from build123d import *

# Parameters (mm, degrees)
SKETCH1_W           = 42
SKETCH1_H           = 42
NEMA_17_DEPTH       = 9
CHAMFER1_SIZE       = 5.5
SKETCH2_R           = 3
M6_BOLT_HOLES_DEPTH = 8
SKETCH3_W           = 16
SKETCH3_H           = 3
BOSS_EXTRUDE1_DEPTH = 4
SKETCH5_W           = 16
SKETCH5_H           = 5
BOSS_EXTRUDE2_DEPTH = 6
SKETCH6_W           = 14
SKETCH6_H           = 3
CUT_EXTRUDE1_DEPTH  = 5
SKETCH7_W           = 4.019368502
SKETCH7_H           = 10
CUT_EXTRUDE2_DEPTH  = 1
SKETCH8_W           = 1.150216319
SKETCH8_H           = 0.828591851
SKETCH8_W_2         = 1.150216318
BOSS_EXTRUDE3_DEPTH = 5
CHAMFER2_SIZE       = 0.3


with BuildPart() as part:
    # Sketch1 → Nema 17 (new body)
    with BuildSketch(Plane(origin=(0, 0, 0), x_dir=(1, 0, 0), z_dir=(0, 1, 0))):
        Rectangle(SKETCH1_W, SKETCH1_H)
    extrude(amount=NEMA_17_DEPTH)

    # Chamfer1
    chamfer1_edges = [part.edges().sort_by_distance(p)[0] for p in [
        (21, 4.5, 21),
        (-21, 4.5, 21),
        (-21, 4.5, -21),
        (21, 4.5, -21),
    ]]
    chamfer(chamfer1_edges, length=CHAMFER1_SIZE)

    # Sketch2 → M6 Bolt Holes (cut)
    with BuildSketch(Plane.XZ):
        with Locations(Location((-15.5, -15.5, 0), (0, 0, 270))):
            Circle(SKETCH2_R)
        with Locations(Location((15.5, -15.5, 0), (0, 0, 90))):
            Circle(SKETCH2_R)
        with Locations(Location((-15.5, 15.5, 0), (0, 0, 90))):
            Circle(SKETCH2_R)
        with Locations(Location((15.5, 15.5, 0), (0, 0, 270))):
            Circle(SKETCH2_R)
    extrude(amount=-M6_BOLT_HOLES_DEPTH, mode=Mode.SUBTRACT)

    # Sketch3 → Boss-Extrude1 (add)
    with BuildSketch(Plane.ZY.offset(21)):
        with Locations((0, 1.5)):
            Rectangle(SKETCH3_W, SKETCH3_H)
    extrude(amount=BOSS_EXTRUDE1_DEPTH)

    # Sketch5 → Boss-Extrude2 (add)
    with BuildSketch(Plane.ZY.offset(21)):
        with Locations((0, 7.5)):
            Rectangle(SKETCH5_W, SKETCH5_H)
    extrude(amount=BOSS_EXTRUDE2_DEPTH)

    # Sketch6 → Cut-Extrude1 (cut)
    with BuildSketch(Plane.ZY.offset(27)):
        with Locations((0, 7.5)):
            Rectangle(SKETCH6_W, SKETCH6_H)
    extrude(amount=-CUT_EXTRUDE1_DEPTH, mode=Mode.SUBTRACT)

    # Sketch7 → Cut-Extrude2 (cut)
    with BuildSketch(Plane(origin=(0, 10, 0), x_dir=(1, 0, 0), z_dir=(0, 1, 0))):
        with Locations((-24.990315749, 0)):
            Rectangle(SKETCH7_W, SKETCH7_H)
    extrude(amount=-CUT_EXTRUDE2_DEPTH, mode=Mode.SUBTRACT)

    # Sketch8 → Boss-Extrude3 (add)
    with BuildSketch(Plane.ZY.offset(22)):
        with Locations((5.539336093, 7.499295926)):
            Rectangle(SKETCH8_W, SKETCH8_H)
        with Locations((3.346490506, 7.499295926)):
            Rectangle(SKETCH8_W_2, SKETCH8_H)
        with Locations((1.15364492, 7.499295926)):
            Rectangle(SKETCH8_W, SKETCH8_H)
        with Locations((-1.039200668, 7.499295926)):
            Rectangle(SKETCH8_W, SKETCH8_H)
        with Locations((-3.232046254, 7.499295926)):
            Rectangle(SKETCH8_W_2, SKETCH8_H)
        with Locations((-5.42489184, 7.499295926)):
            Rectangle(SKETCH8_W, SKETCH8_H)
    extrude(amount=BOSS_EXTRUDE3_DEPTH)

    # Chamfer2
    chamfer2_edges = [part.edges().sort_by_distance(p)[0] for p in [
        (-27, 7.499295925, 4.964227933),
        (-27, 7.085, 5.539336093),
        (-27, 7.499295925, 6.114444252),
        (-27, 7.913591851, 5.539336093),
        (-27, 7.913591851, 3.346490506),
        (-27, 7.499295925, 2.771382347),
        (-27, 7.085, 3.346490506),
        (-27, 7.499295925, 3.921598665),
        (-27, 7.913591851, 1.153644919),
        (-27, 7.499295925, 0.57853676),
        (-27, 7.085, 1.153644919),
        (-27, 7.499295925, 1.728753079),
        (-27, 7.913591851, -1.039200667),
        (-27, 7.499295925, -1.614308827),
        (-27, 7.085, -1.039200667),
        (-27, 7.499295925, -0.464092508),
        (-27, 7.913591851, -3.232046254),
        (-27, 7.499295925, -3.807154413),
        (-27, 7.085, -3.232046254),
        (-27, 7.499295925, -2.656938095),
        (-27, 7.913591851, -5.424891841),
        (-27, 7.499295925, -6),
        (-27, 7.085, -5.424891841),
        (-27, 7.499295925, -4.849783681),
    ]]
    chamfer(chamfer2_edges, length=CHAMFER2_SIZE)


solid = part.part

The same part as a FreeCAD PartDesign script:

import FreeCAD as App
import Part
import Sketcher

V = App.Vector


def edges_at(feature, points):
    """Names of the edges that pass closest to the given points."""
    edges = feature.Shape.Edges
    near = lambda p: min(range(len(edges)), key=lambda i: edges[i].distToShape(Part.Vertex(*p))[0])
    return sorted({f"Edge{near(p) + 1}" for p in points})

doc = App.newDocument("Part")
body = doc.addObject("PartDesign::Body", "Body")

sketch1 = body.newObject("Sketcher::SketchObject", "Sketch")
sketch1.AttachmentSupport = (doc.getObject("XZ_Plane"), [""])
sketch1.MapMode = "FlatFace"
sketch1.addGeometry(Part.LineSegment(V(-21, -21, 0), V(-21, 21, 0)), False)
sketch1.addGeometry(Part.LineSegment(V(-21, 21, 0), V(21, 21, 0)), False)
sketch1.addGeometry(Part.LineSegment(V(21, 21, 0), V(21, -21, 0)), False)
sketch1.addGeometry(Part.LineSegment(V(21, -21, 0), V(-21, -21, 0)), False)
sketch1.addConstraint(Sketcher.Constraint("Coincident", 0, 2, 1, 1))
sketch1.addConstraint(Sketcher.Constraint("Coincident", 1, 2, 2, 1))
sketch1.addConstraint(Sketcher.Constraint("Coincident", 2, 2, 3, 1))
sketch1.addConstraint(Sketcher.Constraint("Coincident", 3, 2, 0, 1))
sketch1.addConstraint(Sketcher.Constraint("Vertical", 0))
sketch1.addConstraint(Sketcher.Constraint("Horizontal", 1))
sketch1.addConstraint(Sketcher.Constraint("Vertical", 2))
sketch1.addConstraint(Sketcher.Constraint("Horizontal", 3))
sketch1.addConstraint(Sketcher.Constraint("Symmetric", 0, 2, 2, 2, -1, 1))
sketch1.addConstraint(Sketcher.Constraint("Equal", 3, 0))
sketch1.addConstraint(Sketcher.Constraint("DistanceX", 1, 1, 1, 2, 42.0))
pad1 = body.newObject("PartDesign::Pad", "Pad")
pad1.Profile = sketch1
pad1.Length = 9
pad1.Reversed = True
doc.recompute()

chamfer = body.newObject("PartDesign::Chamfer", "Chamfer")
chamfer.Base = (pad1, edges_at(pad1, [
    (21, 4.5, 21),
    (-21, 4.5, 21),
    (-21, 4.5, -21),
    (21, 4.5, -21),
]))
chamfer.Size = 5.5

sketch2 = body.newObject("Sketcher::SketchObject", "Sketch001")
sketch2.AttachmentSupport = (doc.getObject("XZ_Plane"), [""])
sketch2.MapMode = "FlatFace"
sketch2.addGeometry(Part.Circle(V(-15.5, -15.5, 0), V(0, 0, 1), 3), False)
sketch2.addGeometry(Part.Circle(V(15.5, -15.5, 0), V(0, 0, 1), 3), False)
sketch2.addGeometry(Part.Circle(V(-15.5, 15.5, 0), V(0, 0, 1), 3), False)
sketch2.addGeometry(Part.Circle(V(15.5, 15.5, 0), V(0, 0, 1), 3), False)
sketch2.addConstraint(Sketcher.Constraint("Equal", 0, 1))
sketch2.addConstraint(Sketcher.Constraint("Equal", 1, 2))
sketch2.addConstraint(Sketcher.Constraint("Equal", 2, 3))
sketch2.addConstraint(Sketcher.Constraint("Symmetric", 1, 3, 2, 3, -1, 1))
sketch2.addConstraint(Sketcher.Constraint("Symmetric", 0, 3, 3, 3, -1, 1))
sketch2.addConstraint(Sketcher.Constraint("Symmetric", 0, 3, 1, 3, -2))
sketch2.addConstraint(Sketcher.Constraint("Diameter", 0, 6.0))
sketch2.addConstraint(Sketcher.Constraint("DistanceX", 0, 3, 1, 3, 31.0))
sketch2.addConstraint(Sketcher.Constraint("DistanceY", 0, 3, 2, 3, 31.0))
pocket1 = body.newObject("PartDesign::Pocket", "Pocket")
pocket1.Profile = sketch2
pocket1.Length = 8

sketch3 = body.newObject("Sketcher::SketchObject", "Sketch002")
sketch3.AttachmentSupport = (doc.getObject("YZ_Plane"), [""])
sketch3.MapMode = "FlatFace"
sketch3.AttachmentOffset = App.Placement(V(0, 0, -21), App.Rotation())
sketch3.addGeometry(Part.LineSegment(V(3, -8, 0), V(0, -8, 0)), False)
sketch3.addGeometry(Part.LineSegment(V(0, -8, 0), V(0, 8, 0)), False)
sketch3.addGeometry(Part.LineSegment(V(0, 8, 0), V(3, 8, 0)), False)
sketch3.addGeometry(Part.LineSegment(V(3, 8, 0), V(3, -8, 0)), False)
sketch3.addConstraint(Sketcher.Constraint("Coincident", 0, 2, 1, 1))
sketch3.addConstraint(Sketcher.Constraint("Coincident", 1, 2, 2, 1))
sketch3.addConstraint(Sketcher.Constraint("Coincident", 2, 2, 3, 1))
sketch3.addConstraint(Sketcher.Constraint("Coincident", 3, 2, 0, 1))
sketch3.addConstraint(Sketcher.Constraint("Horizontal", 0))
sketch3.addConstraint(Sketcher.Constraint("Vertical", 1))
sketch3.addConstraint(Sketcher.Constraint("Horizontal", 2))
sketch3.addConstraint(Sketcher.Constraint("Vertical", 3))
sketch3.addConstraint(Sketcher.Constraint("Symmetric", 0, 2, 1, 2, -1, 1))
sketch3.addConstraint(Sketcher.Constraint("DistanceX", 0, 2, 0, 1, 3.0))
sketch3.addConstraint(Sketcher.Constraint("DistanceY", 1, 1, 1, 2, 16.0))
pad2 = body.newObject("PartDesign::Pad", "Pad001")
pad2.Profile = sketch3
pad2.Length = 4
pad2.Reversed = True

sketch4 = body.newObject("Sketcher::SketchObject", "Sketch003")
sketch4.AttachmentSupport = (doc.getObject("YZ_Plane"), [""])
sketch4.MapMode = "FlatFace"
sketch4.AttachmentOffset = App.Placement(V(0, 0, -21), App.Rotation())
sketch4.addGeometry(Part.LineSegment(V(10, -8, 0), V(5, -8, 0)), False)
sketch4.addGeometry(Part.LineSegment(V(5, -8, 0), V(5, 8, 0)), False)
sketch4.addGeometry(Part.LineSegment(V(5, 8, 0), V(10, 8, 0)), False)
sketch4.addGeometry(Part.LineSegment(V(10, 8, 0), V(10, -8, 0)), False)
sketch4.addConstraint(Sketcher.Constraint("Coincident", 0, 2, 1, 1))
sketch4.addConstraint(Sketcher.Constraint("Coincident", 1, 2, 2, 1))
sketch4.addConstraint(Sketcher.Constraint("Coincident", 2, 2, 3, 1))
sketch4.addConstraint(Sketcher.Constraint("Coincident", 3, 2, 0, 1))
sketch4.addConstraint(Sketcher.Constraint("Horizontal", 0))
sketch4.addConstraint(Sketcher.Constraint("Vertical", 1))
sketch4.addConstraint(Sketcher.Constraint("Horizontal", 2))
sketch4.addConstraint(Sketcher.Constraint("Vertical", 3))
sketch4.addConstraint(Sketcher.Constraint("DistanceX", 0, 2, 0, 1, 5.0))
sketch4.addConstraint(Sketcher.Constraint("DistanceY", 1, 1, 1, 2, 16.0))
sketch4.addConstraint(Sketcher.Constraint("DistanceX", -1, 1, 0, 2, 5.0))
sketch4.addConstraint(Sketcher.Constraint("DistanceY", 0, 2, -1, 1, 8.0))
pad3 = body.newObject("PartDesign::Pad", "Pad002")
pad3.Profile = sketch4
pad3.Length = 6
pad3.Reversed = True

sketch5 = body.newObject("Sketcher::SketchObject", "Sketch004")
sketch5.AttachmentSupport = (doc.getObject("YZ_Plane"), [""])
sketch5.MapMode = "FlatFace"
sketch5.AttachmentOffset = App.Placement(V(0, 0, -27), App.Rotation())
sketch5.addGeometry(Part.LineSegment(V(9, -7, 0), V(6, -7, 0)), False)
sketch5.addGeometry(Part.LineSegment(V(6, -7, 0), V(6, 7, 0)), False)
sketch5.addGeometry(Part.LineSegment(V(6, 7, 0), V(9, 7, 0)), False)
sketch5.addGeometry(Part.LineSegment(V(9, 7, 0), V(9, -7, 0)), False)
sketch5.addConstraint(Sketcher.Constraint("Coincident", 0, 2, 1, 1))
sketch5.addConstraint(Sketcher.Constraint("Coincident", 1, 2, 2, 1))
sketch5.addConstraint(Sketcher.Constraint("Coincident", 2, 2, 3, 1))
sketch5.addConstraint(Sketcher.Constraint("Coincident", 3, 2, 0, 1))
sketch5.addConstraint(Sketcher.Constraint("Horizontal", 0))
sketch5.addConstraint(Sketcher.Constraint("Vertical", 1))
sketch5.addConstraint(Sketcher.Constraint("Horizontal", 2))
sketch5.addConstraint(Sketcher.Constraint("Vertical", 3))
sketch5.addConstraint(Sketcher.Constraint("DistanceX", 0, 2, 0, 1, 3.0))
sketch5.addConstraint(Sketcher.Constraint("DistanceY", 1, 1, 1, 2, 14.0))
sketch5.addConstraint(Sketcher.Constraint("DistanceX", -1, 1, 0, 2, 6.0))
sketch5.addConstraint(Sketcher.Constraint("DistanceY", 0, 2, -1, 1, 7.0))
pocket2 = body.newObject("PartDesign::Pocket", "Pocket001")
pocket2.Profile = sketch5
pocket2.Length = 5
pocket2.Reversed = True

sketch6 = body.newObject("Sketcher::SketchObject", "Sketch005")
sketch6.AttachmentSupport = (doc.getObject("XZ_Plane"), [""])
sketch6.MapMode = "FlatFace"
sketch6.AttachmentOffset = App.Placement(V(0, 0, -10), App.Rotation())
sketch6.addGeometry(Part.LineSegment(V(-27, -5, 0), V(-27, 5, 0)), False)
sketch6.addGeometry(Part.LineSegment(V(-27, 5, 0), V(-23, 5, 0)), False)
sketch6.addGeometry(Part.LineSegment(V(-23, 5, 0), V(-23, -5, 0)), False)
sketch6.addGeometry(Part.LineSegment(V(-23, -5, 0), V(-27, -5, 0)), False)
sketch6.addConstraint(Sketcher.Constraint("Coincident", 0, 2, 1, 1))
sketch6.addConstraint(Sketcher.Constraint("Coincident", 1, 2, 2, 1))
sketch6.addConstraint(Sketcher.Constraint("Coincident", 2, 2, 3, 1))
sketch6.addConstraint(Sketcher.Constraint("Coincident", 3, 2, 0, 1))
sketch6.addConstraint(Sketcher.Constraint("Vertical", 0))
sketch6.addConstraint(Sketcher.Constraint("Horizontal", 1))
sketch6.addConstraint(Sketcher.Constraint("Vertical", 2))
sketch6.addConstraint(Sketcher.Constraint("Horizontal", 3))
sketch6.addConstraint(Sketcher.Constraint("DistanceY", 0, 1, 0, 2, 10.0))
sketch6.addConstraint(Sketcher.Constraint("DistanceX", 0, 2, -1, 1, 27.0))
sketch6.addConstraint(Sketcher.Constraint("DistanceY", -1, 1, 0, 2, 5.0))
sketch6.addConstraint(Sketcher.Constraint("DistanceX", 1, 1, 1, 2, 4.019369))
pocket3 = body.newObject("PartDesign::Pocket", "Pocket002")
pocket3.Profile = sketch6
pocket3.Length = 1
pocket3.Reversed = True

sketch7 = body.newObject("Sketcher::SketchObject", "Sketch006")
sketch7.AttachmentSupport = (doc.getObject("YZ_Plane"), [""])
sketch7.MapMode = "FlatFace"
sketch7.AttachmentOffset = App.Placement(V(0, 0, -22), App.Rotation())
sketch7.addGeometry(Part.LineSegment(V(7.9, 5, 0), V(7.1, 5, 0)), False)
sketch7.addGeometry(Part.LineSegment(V(7.1, 5, 0), V(7.1, 6.1, 0)), False)
sketch7.addGeometry(Part.LineSegment(V(7.1, 6.1, 0), V(7.9, 6.1, 0)), False)
sketch7.addGeometry(Part.LineSegment(V(7.9, 6.1, 0), V(7.9, 5, 0)), False)
sketch7.addGeometry(Part.LineSegment(V(7.9, 2.8, 0), V(7.1, 2.8, 0)), False)
sketch7.addGeometry(Part.LineSegment(V(7.1, 2.8, 0), V(7.1, 3.9, 0)), False)
sketch7.addGeometry(Part.LineSegment(V(7.1, 3.9, 0), V(7.9, 3.9, 0)), False)
sketch7.addGeometry(Part.LineSegment(V(7.9, 3.9, 0), V(7.9, 2.8, 0)), False)
sketch7.addGeometry(Part.LineSegment(V(7.9, 0.6, 0), V(7.1, 0.6, 0)), False)
sketch7.addGeometry(Part.LineSegment(V(7.1, 0.6, 0), V(7.1, 1.7, 0)), False)
sketch7.addGeometry(Part.LineSegment(V(7.1, 1.7, 0), V(7.9, 1.7, 0)), False)
sketch7.addGeometry(Part.LineSegment(V(7.9, 1.7, 0), V(7.9, 0.6, 0)), False)
sketch7.addGeometry(Part.LineSegment(V(7.9, -1.6, 0), V(7.1, -1.6, 0)), False)
sketch7.addGeometry(Part.LineSegment(V(7.1, -1.6, 0), V(7.1, -0.5, 0)), False)
sketch7.addGeometry(Part.LineSegment(V(7.1, -0.5, 0), V(7.9, -0.5, 0)), False)
sketch7.addGeometry(Part.LineSegment(V(7.9, -0.5, 0), V(7.9, -1.6, 0)), False)
sketch7.addGeometry(Part.LineSegment(V(7.9, -3.8, 0), V(7.1, -3.8, 0)), False)
sketch7.addGeometry(Part.LineSegment(V(7.1, -3.8, 0), V(7.1, -2.7, 0)), False)
sketch7.addGeometry(Part.LineSegment(V(7.1, -2.7, 0), V(7.9, -2.7, 0)), False)
sketch7.addGeometry(Part.LineSegment(V(7.9, -2.7, 0), V(7.9, -3.8, 0)), False)
sketch7.addGeometry(Part.LineSegment(V(7.9, -6, 0), V(7.1, -6, 0)), False)
sketch7.addGeometry(Part.LineSegment(V(7.1, -6, 0), V(7.1, -4.8, 0)), False)
sketch7.addGeometry(Part.LineSegment(V(7.1, -4.8, 0), V(7.9, -4.8, 0)), False)
sketch7.addGeometry(Part.LineSegment(V(7.9, -4.8, 0), V(7.9, -6, 0)), False)
sketch7.addConstraint(Sketcher.Constraint("Coincident", 0, 2, 1, 1))
sketch7.addConstraint(Sketcher.Constraint("Coincident", 1, 2, 2, 1))
sketch7.addConstraint(Sketcher.Constraint("Coincident", 2, 2, 3, 1))
sketch7.addConstraint(Sketcher.Constraint("Coincident", 3, 2, 0, 1))
sketch7.addConstraint(Sketcher.Constraint("Coincident", 4, 2, 5, 1))
sketch7.addConstraint(Sketcher.Constraint("Coincident", 5, 2, 6, 1))
sketch7.addConstraint(Sketcher.Constraint("Coincident", 6, 2, 7, 1))
sketch7.addConstraint(Sketcher.Constraint("Coincident", 7, 2, 4, 1))
sketch7.addConstraint(Sketcher.Constraint("Coincident", 8, 2, 9, 1))
sketch7.addConstraint(Sketcher.Constraint("Coincident", 9, 2, 10, 1))
sketch7.addConstraint(Sketcher.Constraint("Coincident", 10, 2, 11, 1))
sketch7.addConstraint(Sketcher.Constraint("Coincident", 11, 2, 8, 1))
sketch7.addConstraint(Sketcher.Constraint("Coincident", 12, 2, 13, 1))
sketch7.addConstraint(Sketcher.Constraint("Coincident", 13, 2, 14, 1))
sketch7.addConstraint(Sketcher.Constraint("Coincident", 14, 2, 15, 1))
sketch7.addConstraint(Sketcher.Constraint("Coincident", 15, 2, 12, 1))
sketch7.addConstraint(Sketcher.Constraint("Coincident", 16, 2, 17, 1))
sketch7.addConstraint(Sketcher.Constraint("Coincident", 17, 2, 18, 1))
sketch7.addConstraint(Sketcher.Constraint("Coincident", 18, 2, 19, 1))
sketch7.addConstraint(Sketcher.Constraint("Coincident", 19, 2, 16, 1))
sketch7.addConstraint(Sketcher.Constraint("Coincident", 20, 2, 21, 1))
sketch7.addConstraint(Sketcher.Constraint("Coincident", 21, 2, 22, 1))
sketch7.addConstraint(Sketcher.Constraint("Coincident", 22, 2, 23, 1))
sketch7.addConstraint(Sketcher.Constraint("Coincident", 23, 2, 20, 1))
sketch7.addConstraint(Sketcher.Constraint("Horizontal", 0))
sketch7.addConstraint(Sketcher.Constraint("Vertical", 1))
sketch7.addConstraint(Sketcher.Constraint("Horizontal", 2))
sketch7.addConstraint(Sketcher.Constraint("Vertical", 3))
sketch7.addConstraint(Sketcher.Constraint("Horizontal", 4))
sketch7.addConstraint(Sketcher.Constraint("Vertical", 5))
sketch7.addConstraint(Sketcher.Constraint("Horizontal", 6))
sketch7.addConstraint(Sketcher.Constraint("Vertical", 7))
sketch7.addConstraint(Sketcher.Constraint("Horizontal", 8))
sketch7.addConstraint(Sketcher.Constraint("Vertical", 9))
sketch7.addConstraint(Sketcher.Constraint("Horizontal", 10))
sketch7.addConstraint(Sketcher.Constraint("Vertical", 11))
sketch7.addConstraint(Sketcher.Constraint("Horizontal", 12))
sketch7.addConstraint(Sketcher.Constraint("Vertical", 13))
sketch7.addConstraint(Sketcher.Constraint("Horizontal", 14))
sketch7.addConstraint(Sketcher.Constraint("Vertical", 15))
sketch7.addConstraint(Sketcher.Constraint("Horizontal", 16))
sketch7.addConstraint(Sketcher.Constraint("Vertical", 17))
sketch7.addConstraint(Sketcher.Constraint("Horizontal", 18))
sketch7.addConstraint(Sketcher.Constraint("Vertical", 19))
sketch7.addConstraint(Sketcher.Constraint("Horizontal", 20))
sketch7.addConstraint(Sketcher.Constraint("Vertical", 21))
sketch7.addConstraint(Sketcher.Constraint("Horizontal", 22))
sketch7.addConstraint(Sketcher.Constraint("Vertical", 23))
sketch7.addConstraint(Sketcher.Constraint("Vertical", 1, 2, 4, 2))
sketch7.addConstraint(Sketcher.Constraint("Vertical", 3, 2, 6, 2))
sketch7.addConstraint(Sketcher.Constraint("Vertical", 5, 2, 8, 2))
sketch7.addConstraint(Sketcher.Constraint("Vertical", 7, 2, 10, 2))
sketch7.addConstraint(Sketcher.Constraint("Vertical", 9, 2, 12, 2))
sketch7.addConstraint(Sketcher.Constraint("Vertical", 11, 2, 14, 2))
sketch7.addConstraint(Sketcher.Constraint("Vertical", 13, 2, 16, 2))
sketch7.addConstraint(Sketcher.Constraint("Vertical", 15, 2, 18, 2))
sketch7.addConstraint(Sketcher.Constraint("Vertical", 17, 2, 20, 2))
sketch7.addConstraint(Sketcher.Constraint("Vertical", 19, 2, 22, 2))
sketch7.addConstraint(Sketcher.Constraint("Equal", 3, 5))
sketch7.addConstraint(Sketcher.Constraint("Equal", 7, 9))
sketch7.addConstraint(Sketcher.Constraint("Equal", 11, 13))
sketch7.addConstraint(Sketcher.Constraint("Equal", 15, 17))
sketch7.addConstraint(Sketcher.Constraint("Equal", 19, 21))
sketch7.addConstraint(Sketcher.Constraint("DistanceY", 20, 2, -1, 1, 6.0))
sketch7.addConstraint(Sketcher.Constraint("DistanceX", -1, 1, 0, 2, 7.085))
sketch7.addConstraint(Sketcher.Constraint("DistanceX", 0, 2, 0, 1, 0.828592))
sketch7.addConstraint(Sketcher.Constraint("DistanceY", -1, 1, 5, 2, 3.921599))
sketch7.addConstraint(Sketcher.Constraint("DistanceY", 1, 1, 1, 2, 1.150216))
sketch7.addConstraint(Sketcher.Constraint("DistanceY", 12, 2, -1, 1, 1.614309))
sketch7.addConstraint(Sketcher.Constraint("DistanceY", 17, 2, -1, 1, 2.656938))
sketch7.addConstraint(Sketcher.Constraint("DistanceY", 4, 2, 1, 2, 3.343062))
sketch7.addConstraint(Sketcher.Constraint("DistanceY", 8, 2, 5, 2, 3.343062))
pad4 = body.newObject("PartDesign::Pad", "Pad003")
pad4.Profile = sketch7
pad4.Length = 5
pad4.Reversed = True
doc.recompute()

chamfer2 = body.newObject("PartDesign::Chamfer", "Chamfer001")
chamfer2.Base = (pad4, edges_at(pad4, [
    (-27, 7.499, 4.964),
    (-27, 7.085, 5.539),
    (-27, 7.499, 6.114),
    (-27, 7.914, 5.539),
    (-27, 7.914, 3.346),
    (-27, 7.499, 2.771),
    (-27, 7.085, 3.346),
    (-27, 7.499, 3.922),
    (-27, 7.914, 1.154),
    (-27, 7.499, 0.579),
    (-27, 7.085, 1.154),
    (-27, 7.499, 1.729),
    (-27, 7.914, -1.039),
    (-27, 7.499, -1.614),
    (-27, 7.085, -1.039),
    (-27, 7.499, -0.464),
    (-27, 7.914, -3.232),
    (-27, 7.499, -3.807),
    (-27, 7.085, -3.232),
    (-27, 7.499, -2.657),
    (-27, 7.914, -5.425),
    (-27, 7.499, -6),
    (-27, 7.085, -5.425),
    (-27, 7.499, -4.85),
]))
chamfer2.Size = 0.3

doc.recompute()
